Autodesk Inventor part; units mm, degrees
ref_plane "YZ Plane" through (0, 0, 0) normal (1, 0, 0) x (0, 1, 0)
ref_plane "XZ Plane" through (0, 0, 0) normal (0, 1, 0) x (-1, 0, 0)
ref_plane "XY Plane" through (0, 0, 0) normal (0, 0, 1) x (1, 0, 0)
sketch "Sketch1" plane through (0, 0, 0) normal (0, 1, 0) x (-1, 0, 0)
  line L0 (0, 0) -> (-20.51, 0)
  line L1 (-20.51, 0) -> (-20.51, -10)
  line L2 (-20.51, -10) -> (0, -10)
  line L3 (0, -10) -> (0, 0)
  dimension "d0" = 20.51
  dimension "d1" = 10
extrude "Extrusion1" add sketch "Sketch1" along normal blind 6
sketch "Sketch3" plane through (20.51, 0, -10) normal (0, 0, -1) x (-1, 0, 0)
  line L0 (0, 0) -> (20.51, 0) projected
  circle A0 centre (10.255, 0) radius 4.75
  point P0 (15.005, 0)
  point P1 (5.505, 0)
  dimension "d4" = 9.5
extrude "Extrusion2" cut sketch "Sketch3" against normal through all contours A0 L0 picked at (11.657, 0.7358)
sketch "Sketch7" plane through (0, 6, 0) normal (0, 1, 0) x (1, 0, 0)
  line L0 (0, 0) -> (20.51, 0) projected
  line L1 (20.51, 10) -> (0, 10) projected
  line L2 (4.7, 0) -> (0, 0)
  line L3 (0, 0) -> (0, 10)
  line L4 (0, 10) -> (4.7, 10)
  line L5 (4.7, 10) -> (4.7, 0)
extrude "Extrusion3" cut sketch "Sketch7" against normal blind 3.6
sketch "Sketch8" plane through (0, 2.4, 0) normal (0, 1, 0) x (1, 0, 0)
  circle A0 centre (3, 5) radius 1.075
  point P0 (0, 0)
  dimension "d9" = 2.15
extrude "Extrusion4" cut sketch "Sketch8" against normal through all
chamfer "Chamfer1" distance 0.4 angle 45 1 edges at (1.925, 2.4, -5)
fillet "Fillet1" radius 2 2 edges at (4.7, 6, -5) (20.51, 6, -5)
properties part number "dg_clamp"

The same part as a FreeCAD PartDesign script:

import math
import FreeCAD as App
import Part
import Sketcher


def edges_at(feature, points):
    """Names of the edges that pass closest to the given points."""
    edges = feature.Shape.Edges
    near = lambda p: min(range(len(edges)), key=lambda i: edges[i].distToShape(Part.Vertex(*p))[0])
    return sorted({f"Edge{near(p) + 1}" for p in points})

doc = App.newDocument("Part")
params = doc.addObject("Spreadsheet::Sheet", "Params")
for row, (alias, value) in enumerate([
    ("sketch1_height", "10 mm"),
    ("sketch1_width", "20.51 mm"),
    ("pad1_length", "6 mm"),
    ("sketch2_radius", "4.75 mm"),
    ("sketch3_height", "10 mm"),
    ("sketch3_width", "4.7 mm"),
    ("pocket2_length", "3.6 mm"),
    ("sketch4_diameter", "2.15 mm"),
    ("chamfer_size", "0.4 mm"),
    ("fillet_radius", "2 mm"),
], start=1):
    params.set(f"A{row}", alias)
    params.set(f"B{row}", "=" + value)
    params.setAlias(f"B{row}", alias)

body = doc.addObject("PartDesign::Body", "Body")

# Sketch on XZ plane
sketch1 = body.newObject("Sketcher::SketchObject", "Sketch")
sketch1.AttachmentSupport = (doc.getObject("XZ_Plane"), [""])
sketch1.MapMode = "FlatFace"
sketch1.addGeometry(Part.LineSegment(App.Vector(0, -10, 0), App.Vector(0, 0, 0)), False)
sketch1.addGeometry(Part.LineSegment(App.Vector(0, 0, 0), App.Vector(21, 0, 0)), False)
sketch1.addGeometry(Part.LineSegment(App.Vector(21, 0, 0), App.Vector(21, -10, 0)), False)
sketch1.addGeometry(Part.LineSegment(App.Vector(21, -10, 0), App.Vector(0, -10, 0)), False)
sketch1.addConstraint(Sketcher.Constraint("Coincident", 0, 2, 1, 1))
sketch1.addConstraint(Sketcher.Constraint("Coincident", 1, 2, 2, 1))
sketch1.addConstraint(Sketcher.Constraint("Coincident", 2, 2, 3, 1))
sketch1.addConstraint(Sketcher.Constraint("Coincident", 3, 2, 0, 1))
sketch1.addConstraint(Sketcher.Constraint("Vertical", 0))
sketch1.addConstraint(Sketcher.Constraint("Horizontal", 1))
sketch1.addConstraint(Sketcher.Constraint("Vertical", 2))
sketch1.addConstraint(Sketcher.Constraint("Horizontal", 3))
sketch1.addConstraint(Sketcher.Constraint("Coincident", 0, 2, -1, 1))
sketch1.addConstraint(Sketcher.Constraint("DistanceY", 0, 1, 0, 2, 10.0))
sketch1.addConstraint(Sketcher.Constraint("DistanceX", 1, 1, 1, 2, 20.51))
sketch1.setExpression("Constraints[9]", "Params.sketch1_height")
sketch1.setExpression("Constraints[10]", "Params.sketch1_width")
pad1 = body.newObject("PartDesign::Pad", "Pad")
pad1.Profile = sketch1
pad1.setExpression("Length", "Params.pad1_length")
pad1.Reversed = True

# Sketch on XY plane
sketch2 = body.newObject("Sketcher::SketchObject", "Sketch001")
sketch2.AttachmentSupport = (doc.getObject("XY_Plane"), [""])
sketch2.MapMode = "FlatFace"
sketch2.AttachmentOffset = App.Placement(App.Vector(0, 0, -10), App.Rotation())
sketch2.addGeometry(Part.ArcOfCircle(Part.Circle(App.Vector(10.3, 0, 0), App.Vector(0, 0, 1), 4.8), math.radians(0), math.radians(180)), False)
sketch2.addGeometry(Part.LineSegment(App.Vector(15, 0, 0), App.Vector(5.5, 0, 0)), False)
sketch2.addConstraint(Sketcher.Constraint("Coincident", 0, 1, 1, 1))
sketch2.addConstraint(Sketcher.Constraint("Coincident", 1, 2, 0, 2))
sketch2.addConstraint(Sketcher.Constraint("Horizontal", 1))
sketch2.addConstraint(Sketcher.Constraint("PointOnObject", 0, 3, -1))
sketch2.addConstraint(Sketcher.Constraint("PointOnObject", 0, 1, -1))
sketch2.addConstraint(Sketcher.Constraint("Radius", 0, 4.75))
sketch2.addConstraint(Sketcher.Constraint("DistanceX", -1, 1, 0, 3, 10.255))
sketch2.setExpression("Constraints[5]", "Params.sketch2_radius")
pocket1 = body.newObject("PartDesign::Pocket", "Pocket")
pocket1.Profile = sketch2
pocket1.Type = "ThroughAll"
pocket1.Reversed = True

# Sketch on XZ plane
sketch3 = body.newObject("Sketcher::SketchObject", "Sketch002")
sketch3.AttachmentSupport = (doc.getObject("XZ_Plane"), [""])
sketch3.MapMode = "FlatFace"
sketch3.AttachmentOffset = App.Placement(App.Vector(0, 0, -6), App.Rotation())
sketch3.addGeometry(Part.LineSegment(App.Vector(0, -10, 0), App.Vector(0, 0, 0)), False)
sketch3.addGeometry(Part.LineSegment(App.Vector(0, 0, 0), App.Vector(4.7, 0, 0)), False)
sketch3.addGeometry(Part.LineSegment(App.Vector(4.7, 0, 0), App.Vector(4.7, -10, 0)), False)
sketch3.addGeometry(Part.LineSegment(App.Vector(4.7, -10, 0), App.Vector(0, -10, 0)), False)
sketch3.addConstraint(Sketcher.Constraint("Coincident", 0, 2, 1, 1))
sketch3.addConstraint(Sketcher.Constraint("Coincident", 1, 2, 2, 1))
sketch3.addConstraint(Sketcher.Constraint("Coincident", 2, 2, 3, 1))
sketch3.addConstraint(Sketcher.Constraint("Coincident", 3, 2, 0, 1))
sketch3.addConstraint(Sketcher.Constraint("Vertical", 0))
sketch3.addConstraint(Sketcher.Constraint("Horizontal", 1))
sketch3.addConstraint(Sketcher.Constraint("Vertical", 2))
sketch3.addConstraint(Sketcher.Constraint("Horizontal", 3))
sketch3.addConstraint(Sketcher.Constraint("Coincident", 0, 2, -1, 1))
sketch3.addConstraint(Sketcher.Constraint("DistanceY", 0, 1, 0, 2, 10.0))
sketch3.addConstraint(Sketcher.Constraint("DistanceX", 1, 1, 1, 2, 4.7))
sketch3.setExpression("Constraints[9]", "Params.sketch3_height")
sketch3.setExpression("Constraints[10]", "Params.sketch3_width")
pocket2 = body.newObject("PartDesign::Pocket", "Pocket001")
pocket2.Profile = sketch3
pocket2.setExpression("Length", "Params.pocket2_length")
pocket2.Reversed = True

# Sketch on XZ plane
sketch4 = body.newObject("Sketcher::SketchObject", "Sketch003")
sketch4.AttachmentSupport = (doc.getObject("XZ_Plane"), [""])
sketch4.MapMode = "FlatFace"
sketch4.AttachmentOffset = App.Placement(App.Vector(0, 0, -2.4), App.Rotation())
sketch4.addGeometry(Part.Circle(App.Vector(3, -5, 0), App.Vector(0, 0, 1), 1.1), False)
sketch4.addConstraint(Sketcher.Constraint("Diameter", 0, 2.15))
sketch4.addConstraint(Sketcher.Constraint("DistanceX", -1, 1, 0, 3, 3.0))
sketch4.addConstraint(Sketcher.Constraint("DistanceY", 0, 3, -1, 1, 5.0))
sketch4.setExpression("Constraints[0]", "Params.sketch4_diameter")
pocket3 = body.newObject("PartDesign::Pocket", "Pocket002")
pocket3.Profile = sketch4
pocket3.Type = "ThroughAll"
pocket3.Reversed = True
doc.recompute()

chamfer = body.newObject("PartDesign::Chamfer", "Chamfer")
chamfer.Base = (pocket3, edges_at(pocket3, [(1.925, 2.4, -5)]))
chamfer.setExpression("Size", "Params.chamfer_size")
doc.recompute()

fillet = body.newObject("PartDesign::Fillet", "Fillet")
fillet.Base = (chamfer, edges_at(chamfer, [(4.7, 6, -5), (20.51, 6, -5)]))
fillet.setExpression("Radius", "Params.fillet_radius")

doc.recompute()
